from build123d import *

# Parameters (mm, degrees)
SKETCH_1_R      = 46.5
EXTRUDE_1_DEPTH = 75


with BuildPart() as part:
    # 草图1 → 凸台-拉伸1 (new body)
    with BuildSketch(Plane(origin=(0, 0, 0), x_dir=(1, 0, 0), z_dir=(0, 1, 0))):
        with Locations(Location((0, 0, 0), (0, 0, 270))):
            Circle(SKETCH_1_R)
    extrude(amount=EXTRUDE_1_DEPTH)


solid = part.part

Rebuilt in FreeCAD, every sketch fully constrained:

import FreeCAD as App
import Part
import Sketcher
Q = App.Units.Quantity

doc = App.newDocument("Part")
params = doc.addObject("Spreadsheet::Sheet", "Params")
for row, (alias, value) in enumerate([
    ("sketch1_diameter", "93 mm"),
    ("pad1_length", "75 mm"),
], start=1):
    params.set(f"A{row}", alias)
    params.set(f"B{row}", "=" + value)
    params.setAlias(f"B{row}", alias)

body = doc.addObject("PartDesign::Body", "Body")

sketch1 = body.newObject("Sketcher::SketchObject", "Sketch")
sketch1.AttachmentSupport = (doc.getObject("XZ_Plane"), [""])
sketch1.MapMode = "FlatFace"
sketch1.addGeometry(Part.Circle(App.Vector(0, 0, 0), App.Vector(0, 0, 1), 46.5), False)
sketch1.addConstraint(Sketcher.Constraint("Coincident", 0, 3, -1, 1))
sketch1.addConstraint(Sketcher.Constraint("Diameter", 0, Q("93 mm")))
sketch1.setExpression("Constraints[1]", "Params.sketch1_diameter")
pad1 = body.newObject("PartDesign::Pad", "Pad")
pad1.Profile = sketch1
pad1.setExpression("Length", "Params.pad1_length")
pad1.Reversed = True

doc.recompute()
